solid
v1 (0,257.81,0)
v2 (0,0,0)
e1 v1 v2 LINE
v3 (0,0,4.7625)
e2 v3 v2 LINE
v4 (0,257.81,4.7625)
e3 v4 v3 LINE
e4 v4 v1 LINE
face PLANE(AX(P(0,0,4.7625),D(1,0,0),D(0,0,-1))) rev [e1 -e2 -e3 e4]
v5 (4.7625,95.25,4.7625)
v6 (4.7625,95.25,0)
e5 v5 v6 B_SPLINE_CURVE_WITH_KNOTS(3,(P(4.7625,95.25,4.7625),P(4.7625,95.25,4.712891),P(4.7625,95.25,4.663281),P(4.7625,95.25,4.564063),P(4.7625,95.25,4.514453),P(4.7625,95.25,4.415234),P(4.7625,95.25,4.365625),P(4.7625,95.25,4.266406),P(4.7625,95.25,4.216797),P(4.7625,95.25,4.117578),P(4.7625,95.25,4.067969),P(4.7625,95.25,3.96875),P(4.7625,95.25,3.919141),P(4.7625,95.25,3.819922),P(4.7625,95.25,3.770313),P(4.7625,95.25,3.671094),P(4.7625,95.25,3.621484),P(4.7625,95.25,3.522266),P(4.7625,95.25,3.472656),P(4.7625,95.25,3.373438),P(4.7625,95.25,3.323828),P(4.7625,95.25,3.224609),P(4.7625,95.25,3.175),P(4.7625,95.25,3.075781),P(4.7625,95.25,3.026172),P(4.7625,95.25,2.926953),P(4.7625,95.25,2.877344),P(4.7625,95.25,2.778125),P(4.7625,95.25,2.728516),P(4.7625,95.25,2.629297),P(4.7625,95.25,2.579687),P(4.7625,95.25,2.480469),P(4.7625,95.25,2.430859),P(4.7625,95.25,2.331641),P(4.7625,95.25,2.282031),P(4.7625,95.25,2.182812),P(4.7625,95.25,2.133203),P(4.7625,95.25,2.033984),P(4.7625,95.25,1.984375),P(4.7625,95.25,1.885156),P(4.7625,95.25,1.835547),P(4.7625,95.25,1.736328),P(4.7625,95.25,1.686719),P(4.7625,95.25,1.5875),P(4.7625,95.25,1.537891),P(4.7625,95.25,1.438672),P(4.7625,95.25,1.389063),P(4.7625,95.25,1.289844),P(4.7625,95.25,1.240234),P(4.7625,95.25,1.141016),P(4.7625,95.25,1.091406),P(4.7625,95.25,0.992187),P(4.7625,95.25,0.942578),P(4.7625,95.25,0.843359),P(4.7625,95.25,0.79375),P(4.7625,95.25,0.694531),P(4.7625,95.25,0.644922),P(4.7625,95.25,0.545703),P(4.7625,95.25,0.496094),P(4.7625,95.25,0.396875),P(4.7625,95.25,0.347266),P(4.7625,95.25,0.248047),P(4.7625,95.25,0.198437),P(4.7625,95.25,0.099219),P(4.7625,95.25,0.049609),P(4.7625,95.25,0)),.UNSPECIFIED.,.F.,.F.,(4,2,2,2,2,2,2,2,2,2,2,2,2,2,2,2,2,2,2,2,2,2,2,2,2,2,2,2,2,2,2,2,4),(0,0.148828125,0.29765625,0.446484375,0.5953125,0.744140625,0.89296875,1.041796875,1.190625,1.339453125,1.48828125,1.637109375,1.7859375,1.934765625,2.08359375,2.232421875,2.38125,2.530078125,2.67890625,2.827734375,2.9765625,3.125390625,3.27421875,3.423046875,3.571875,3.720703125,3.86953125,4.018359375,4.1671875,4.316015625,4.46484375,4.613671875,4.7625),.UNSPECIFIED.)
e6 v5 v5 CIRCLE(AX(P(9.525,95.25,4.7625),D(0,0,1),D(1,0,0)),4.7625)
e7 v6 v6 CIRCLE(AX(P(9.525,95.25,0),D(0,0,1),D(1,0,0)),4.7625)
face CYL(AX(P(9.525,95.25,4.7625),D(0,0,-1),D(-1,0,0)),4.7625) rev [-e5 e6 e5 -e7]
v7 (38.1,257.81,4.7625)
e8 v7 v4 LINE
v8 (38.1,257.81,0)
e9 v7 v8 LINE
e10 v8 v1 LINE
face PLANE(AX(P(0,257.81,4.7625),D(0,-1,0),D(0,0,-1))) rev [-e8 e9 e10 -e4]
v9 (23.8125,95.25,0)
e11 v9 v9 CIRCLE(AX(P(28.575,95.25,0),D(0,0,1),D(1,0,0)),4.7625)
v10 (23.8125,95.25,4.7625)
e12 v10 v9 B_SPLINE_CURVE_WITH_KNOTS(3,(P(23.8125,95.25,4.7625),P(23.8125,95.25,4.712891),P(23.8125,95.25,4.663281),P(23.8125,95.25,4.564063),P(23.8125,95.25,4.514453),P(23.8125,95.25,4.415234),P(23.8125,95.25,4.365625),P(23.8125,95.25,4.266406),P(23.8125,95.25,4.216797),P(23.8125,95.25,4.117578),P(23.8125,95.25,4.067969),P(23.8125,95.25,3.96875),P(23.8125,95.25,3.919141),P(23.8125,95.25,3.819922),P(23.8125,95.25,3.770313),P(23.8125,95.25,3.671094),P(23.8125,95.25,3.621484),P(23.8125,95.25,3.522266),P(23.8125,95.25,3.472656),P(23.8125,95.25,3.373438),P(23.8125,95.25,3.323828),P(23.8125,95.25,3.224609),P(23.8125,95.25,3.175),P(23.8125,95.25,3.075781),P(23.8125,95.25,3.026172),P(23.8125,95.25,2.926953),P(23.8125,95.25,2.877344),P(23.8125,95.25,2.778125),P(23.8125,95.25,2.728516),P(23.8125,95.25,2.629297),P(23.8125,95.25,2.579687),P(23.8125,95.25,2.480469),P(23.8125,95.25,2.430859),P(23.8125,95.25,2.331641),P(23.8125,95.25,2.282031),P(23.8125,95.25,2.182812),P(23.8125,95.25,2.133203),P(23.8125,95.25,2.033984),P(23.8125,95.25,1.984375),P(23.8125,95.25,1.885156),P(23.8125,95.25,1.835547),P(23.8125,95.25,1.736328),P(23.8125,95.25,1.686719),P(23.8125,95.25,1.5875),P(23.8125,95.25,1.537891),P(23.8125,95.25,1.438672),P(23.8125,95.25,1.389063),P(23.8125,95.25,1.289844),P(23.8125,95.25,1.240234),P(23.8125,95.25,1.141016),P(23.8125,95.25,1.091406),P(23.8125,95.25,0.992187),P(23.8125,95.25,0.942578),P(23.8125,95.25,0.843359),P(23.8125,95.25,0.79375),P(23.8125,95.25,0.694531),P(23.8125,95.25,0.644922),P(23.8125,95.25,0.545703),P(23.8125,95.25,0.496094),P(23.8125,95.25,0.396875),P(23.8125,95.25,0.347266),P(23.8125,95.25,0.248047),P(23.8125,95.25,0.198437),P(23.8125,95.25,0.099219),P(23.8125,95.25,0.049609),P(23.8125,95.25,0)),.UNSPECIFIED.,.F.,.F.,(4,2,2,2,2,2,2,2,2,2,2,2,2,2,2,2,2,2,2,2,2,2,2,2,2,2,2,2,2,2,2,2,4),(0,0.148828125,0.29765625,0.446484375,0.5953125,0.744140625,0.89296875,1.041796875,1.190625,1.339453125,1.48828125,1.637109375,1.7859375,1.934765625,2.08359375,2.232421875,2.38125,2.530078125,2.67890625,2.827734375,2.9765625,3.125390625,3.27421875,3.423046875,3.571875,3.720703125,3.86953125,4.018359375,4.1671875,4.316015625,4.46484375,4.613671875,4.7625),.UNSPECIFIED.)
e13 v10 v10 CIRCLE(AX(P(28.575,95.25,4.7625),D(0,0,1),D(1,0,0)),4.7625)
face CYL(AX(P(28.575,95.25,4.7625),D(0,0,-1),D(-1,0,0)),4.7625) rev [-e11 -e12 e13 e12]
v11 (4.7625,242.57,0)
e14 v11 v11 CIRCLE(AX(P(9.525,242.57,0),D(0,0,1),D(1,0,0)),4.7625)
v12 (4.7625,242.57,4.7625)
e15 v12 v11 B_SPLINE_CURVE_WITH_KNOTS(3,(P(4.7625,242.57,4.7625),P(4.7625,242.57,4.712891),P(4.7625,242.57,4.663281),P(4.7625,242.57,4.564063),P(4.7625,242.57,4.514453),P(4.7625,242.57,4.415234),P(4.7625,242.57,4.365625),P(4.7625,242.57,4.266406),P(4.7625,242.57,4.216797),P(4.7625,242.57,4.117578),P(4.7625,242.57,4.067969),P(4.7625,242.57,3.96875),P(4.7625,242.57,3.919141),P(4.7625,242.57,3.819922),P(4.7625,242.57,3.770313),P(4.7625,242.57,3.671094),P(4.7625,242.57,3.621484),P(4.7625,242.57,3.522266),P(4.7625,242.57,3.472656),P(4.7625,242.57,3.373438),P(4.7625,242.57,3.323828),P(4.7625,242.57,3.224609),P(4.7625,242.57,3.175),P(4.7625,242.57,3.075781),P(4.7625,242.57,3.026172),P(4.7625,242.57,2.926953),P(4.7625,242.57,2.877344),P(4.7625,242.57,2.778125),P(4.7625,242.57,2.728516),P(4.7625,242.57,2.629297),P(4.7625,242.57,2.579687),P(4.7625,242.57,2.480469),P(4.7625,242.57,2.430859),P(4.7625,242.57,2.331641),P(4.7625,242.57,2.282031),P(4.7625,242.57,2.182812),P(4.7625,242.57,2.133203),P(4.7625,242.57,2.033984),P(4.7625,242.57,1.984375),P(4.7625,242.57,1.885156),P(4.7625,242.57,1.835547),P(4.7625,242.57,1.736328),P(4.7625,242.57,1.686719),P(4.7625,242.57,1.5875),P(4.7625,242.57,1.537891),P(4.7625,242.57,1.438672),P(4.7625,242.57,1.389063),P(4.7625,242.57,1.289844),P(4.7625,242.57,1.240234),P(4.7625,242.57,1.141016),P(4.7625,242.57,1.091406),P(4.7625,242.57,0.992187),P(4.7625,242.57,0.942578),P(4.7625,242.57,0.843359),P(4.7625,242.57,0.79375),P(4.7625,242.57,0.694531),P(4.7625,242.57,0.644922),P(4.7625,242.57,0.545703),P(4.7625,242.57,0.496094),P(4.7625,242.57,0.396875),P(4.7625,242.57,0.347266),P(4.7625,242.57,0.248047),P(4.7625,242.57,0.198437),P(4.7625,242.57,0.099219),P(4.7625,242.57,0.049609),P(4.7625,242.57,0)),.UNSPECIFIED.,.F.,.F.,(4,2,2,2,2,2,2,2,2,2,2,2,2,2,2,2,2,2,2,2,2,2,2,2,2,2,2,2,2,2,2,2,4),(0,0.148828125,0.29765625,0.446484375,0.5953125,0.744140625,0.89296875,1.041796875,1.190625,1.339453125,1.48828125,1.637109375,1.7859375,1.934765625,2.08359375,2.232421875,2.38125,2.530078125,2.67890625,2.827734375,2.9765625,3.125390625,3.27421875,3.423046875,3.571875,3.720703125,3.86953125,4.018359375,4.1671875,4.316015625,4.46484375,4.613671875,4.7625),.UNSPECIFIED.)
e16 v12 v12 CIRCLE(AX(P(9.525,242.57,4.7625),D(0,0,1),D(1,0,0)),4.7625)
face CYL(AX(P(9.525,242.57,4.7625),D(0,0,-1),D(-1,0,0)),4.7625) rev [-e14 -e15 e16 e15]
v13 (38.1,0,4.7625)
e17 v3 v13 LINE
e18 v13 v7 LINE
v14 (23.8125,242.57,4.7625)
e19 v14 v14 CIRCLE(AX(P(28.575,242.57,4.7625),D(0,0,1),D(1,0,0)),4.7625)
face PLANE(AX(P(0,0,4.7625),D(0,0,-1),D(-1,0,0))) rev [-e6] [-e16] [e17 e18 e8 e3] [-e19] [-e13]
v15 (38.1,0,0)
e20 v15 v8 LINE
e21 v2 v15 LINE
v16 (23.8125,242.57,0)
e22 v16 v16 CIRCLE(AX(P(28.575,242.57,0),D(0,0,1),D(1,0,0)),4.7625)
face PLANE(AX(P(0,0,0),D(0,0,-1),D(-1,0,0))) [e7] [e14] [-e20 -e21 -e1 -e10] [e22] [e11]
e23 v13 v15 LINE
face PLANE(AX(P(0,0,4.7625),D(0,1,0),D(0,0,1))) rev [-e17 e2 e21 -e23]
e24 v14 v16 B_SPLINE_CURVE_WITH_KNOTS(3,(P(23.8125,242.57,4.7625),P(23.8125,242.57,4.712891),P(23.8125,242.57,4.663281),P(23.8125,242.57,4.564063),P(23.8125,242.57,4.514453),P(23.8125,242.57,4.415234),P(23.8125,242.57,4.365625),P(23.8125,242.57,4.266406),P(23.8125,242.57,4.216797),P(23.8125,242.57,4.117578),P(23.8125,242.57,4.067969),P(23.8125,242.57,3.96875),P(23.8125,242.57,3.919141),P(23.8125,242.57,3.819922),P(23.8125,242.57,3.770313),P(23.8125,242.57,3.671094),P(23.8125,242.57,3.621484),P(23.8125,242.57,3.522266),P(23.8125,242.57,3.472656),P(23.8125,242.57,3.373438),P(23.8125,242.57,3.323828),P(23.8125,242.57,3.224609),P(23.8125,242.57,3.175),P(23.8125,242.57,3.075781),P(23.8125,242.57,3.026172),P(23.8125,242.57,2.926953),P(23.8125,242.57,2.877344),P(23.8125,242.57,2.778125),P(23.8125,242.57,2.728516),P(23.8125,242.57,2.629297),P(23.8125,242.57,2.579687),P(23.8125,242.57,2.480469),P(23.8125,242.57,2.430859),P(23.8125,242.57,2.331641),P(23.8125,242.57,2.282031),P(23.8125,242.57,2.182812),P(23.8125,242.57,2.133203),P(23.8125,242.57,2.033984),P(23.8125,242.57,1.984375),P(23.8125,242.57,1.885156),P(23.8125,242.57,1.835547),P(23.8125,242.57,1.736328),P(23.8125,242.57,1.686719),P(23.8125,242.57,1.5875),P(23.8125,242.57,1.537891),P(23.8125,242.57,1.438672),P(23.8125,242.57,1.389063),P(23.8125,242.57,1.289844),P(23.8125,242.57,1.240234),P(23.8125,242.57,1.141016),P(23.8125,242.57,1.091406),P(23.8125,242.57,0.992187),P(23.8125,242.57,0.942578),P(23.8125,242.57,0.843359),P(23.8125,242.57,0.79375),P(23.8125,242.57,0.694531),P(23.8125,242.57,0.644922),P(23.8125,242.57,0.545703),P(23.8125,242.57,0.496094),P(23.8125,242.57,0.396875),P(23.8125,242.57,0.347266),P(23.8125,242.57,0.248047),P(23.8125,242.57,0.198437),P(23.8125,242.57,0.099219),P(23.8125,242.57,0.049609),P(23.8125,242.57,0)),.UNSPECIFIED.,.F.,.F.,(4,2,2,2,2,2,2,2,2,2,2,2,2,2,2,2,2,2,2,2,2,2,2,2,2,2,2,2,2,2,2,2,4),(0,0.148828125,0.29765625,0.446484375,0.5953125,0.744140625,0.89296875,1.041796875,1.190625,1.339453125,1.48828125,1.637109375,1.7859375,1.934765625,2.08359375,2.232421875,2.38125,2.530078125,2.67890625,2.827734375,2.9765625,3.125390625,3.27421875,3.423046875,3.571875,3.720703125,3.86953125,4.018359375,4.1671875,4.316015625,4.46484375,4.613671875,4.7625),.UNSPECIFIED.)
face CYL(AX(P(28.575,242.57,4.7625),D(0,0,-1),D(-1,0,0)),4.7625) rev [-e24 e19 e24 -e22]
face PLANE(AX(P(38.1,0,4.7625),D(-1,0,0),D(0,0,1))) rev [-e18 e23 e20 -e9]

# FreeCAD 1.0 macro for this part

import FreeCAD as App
import Part
import Sketcher
Q = App.Units.Quantity

doc = App.newDocument("Part")
body = doc.addObject("PartDesign::Body", "Body")

sketch1 = body.newObject("Sketcher::SketchObject", "Sketch")
sketch1.AttachmentSupport = (doc.getObject("XY_Plane"), [""])
sketch1.MapMode = "FlatFace"
sketch1.addGeometry(Part.LineSegment(App.Vector(0, 257.8, 0), App.Vector(0, 0, 0)), False)
sketch1.addGeometry(Part.LineSegment(App.Vector(0, 0, 0), App.Vector(38.1, 0, 0)), False)
sketch1.addGeometry(Part.LineSegment(App.Vector(38.1, 0, 0), App.Vector(38.1, 257.8, 0)), False)
sketch1.addGeometry(Part.LineSegment(App.Vector(38.1, 257.8, 0), App.Vector(0, 257.8, 0)), False)
sketch1.addGeometry(Part.Circle(App.Vector(9.5, 95.2, 0), App.Vector(0, 0, 1), 4.8), False)
sketch1.addGeometry(Part.Circle(App.Vector(28.6, 95.2, 0), App.Vector(0, 0, 1), 4.8), False)
sketch1.addGeometry(Part.Circle(App.Vector(9.5, 242.6, 0), App.Vector(0, 0, 1), 4.8), False)
sketch1.addGeometry(Part.Circle(App.Vector(28.6, 242.6, 0), App.Vector(0, 0, 1), 4.8), False)
sketch1.addConstraint(Sketcher.Constraint("Coincident", 0, 2, 1, 1))
sketch1.addConstraint(Sketcher.Constraint("Coincident", 1, 2, 2, 1))
sketch1.addConstraint(Sketcher.Constraint("Coincident", 2, 2, 3, 1))
sketch1.addConstraint(Sketcher.Constraint("Coincident", 3, 2, 0, 1))
sketch1.addConstraint(Sketcher.Constraint("Vertical", 0))
sketch1.addConstraint(Sketcher.Constraint("Horizontal", 1))
sketch1.addConstraint(Sketcher.Constraint("Vertical", 2))
sketch1.addConstraint(Sketcher.Constraint("Horizontal", 3))
sketch1.addConstraint(Sketcher.Constraint("Coincident", 0, 2, -1, 1))
sketch1.addConstraint(Sketcher.Constraint("Equal", 4, 5))
sketch1.addConstraint(Sketcher.Constraint("Equal", 5, 6))
sketch1.addConstraint(Sketcher.Constraint("Equal", 6, 7))
sketch1.addConstraint(Sketcher.Constraint("Horizontal", 4, 3, 5, 3))
sketch1.addConstraint(Sketcher.Constraint("Horizontal", 6, 3, 7, 3))
sketch1.addConstraint(Sketcher.Constraint("Vertical", 4, 3, 6, 3))
sketch1.addConstraint(Sketcher.Constraint("Vertical", 5, 3, 7, 3))
sketch1.addConstraint(Sketcher.Constraint("Diameter", 4, Q("0.375 in")))
sketch1.addConstraint(Sketcher.Constraint("DistanceX", 1, 1, 1, 2, Q("1.5 in")))
sketch1.addConstraint(Sketcher.Constraint("DistanceY", 0, 2, 0, 1, Q("10.15 in")))
sketch1.addConstraint(Sketcher.Constraint("DistanceY", 4, 3, 6, 3, Q("5.8 in")))
sketch1.addConstraint(Sketcher.Constraint("DistanceY", 7, 3, 2, 2, Q("0.6 in")))
sketch1.addConstraint(Sketcher.Constraint("DistanceX", 4, 3, 5, 3, Q("0.75 in")))
sketch1.addConstraint(Sketcher.Constraint("DistanceX", -1, 1, 4, 3, Q("0.375 in")))
pad1 = body.newObject("PartDesign::Pad", "Pad")
pad1.Profile = sketch1
pad1.Length = Q("0.1875 in")

doc.recompute()
